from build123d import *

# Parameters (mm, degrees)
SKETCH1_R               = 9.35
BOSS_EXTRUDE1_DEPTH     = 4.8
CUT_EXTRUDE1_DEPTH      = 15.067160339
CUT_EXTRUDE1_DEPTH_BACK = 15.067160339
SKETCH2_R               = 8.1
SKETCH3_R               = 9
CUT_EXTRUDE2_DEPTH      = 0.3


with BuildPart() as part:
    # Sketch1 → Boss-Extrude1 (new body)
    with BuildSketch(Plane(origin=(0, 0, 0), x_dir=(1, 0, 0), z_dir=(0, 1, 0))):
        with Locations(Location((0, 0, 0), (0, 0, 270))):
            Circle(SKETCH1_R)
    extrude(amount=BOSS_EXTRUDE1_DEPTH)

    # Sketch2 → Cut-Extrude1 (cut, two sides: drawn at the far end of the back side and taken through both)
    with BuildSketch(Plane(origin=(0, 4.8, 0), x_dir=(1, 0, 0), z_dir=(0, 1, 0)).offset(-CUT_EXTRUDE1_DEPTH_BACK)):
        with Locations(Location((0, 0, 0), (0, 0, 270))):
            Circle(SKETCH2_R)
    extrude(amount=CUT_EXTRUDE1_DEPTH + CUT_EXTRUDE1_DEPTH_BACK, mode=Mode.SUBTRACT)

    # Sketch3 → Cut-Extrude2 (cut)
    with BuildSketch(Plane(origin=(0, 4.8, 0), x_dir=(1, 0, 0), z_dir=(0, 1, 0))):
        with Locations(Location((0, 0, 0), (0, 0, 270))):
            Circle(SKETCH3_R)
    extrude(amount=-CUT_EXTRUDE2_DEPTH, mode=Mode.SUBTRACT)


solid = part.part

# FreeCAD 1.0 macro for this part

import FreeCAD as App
import Part
import Sketcher
from FreeCAD import Vector
Q = App.Units.Quantity

doc = App.newDocument("Part")
params = doc.addObject("Spreadsheet::Sheet", "Params")
for row, (alias, value) in enumerate([
    ("sketch1_diameter", "18.7 mm"),
    ("pad1_length", "4.8 mm"),
    ("sketch2_diameter", "16.2 mm"),
    ("sketch3_diameter", "18 mm"),
    ("pocket2_length", "0.3 mm"),
], start=1):
    params.set(f"A{row}", alias)
    params.set(f"B{row}", "=" + value)
    params.setAlias(f"B{row}", alias)

body = doc.addObject("PartDesign::Body", "Body")

sketch1 = body.newObject("Sketcher::SketchObject", "Sketch")
sketch1.AttachmentSupport = (doc.getObject("XZ_Plane"), [""])
sketch1.MapMode = "FlatFace"
sketch1.addGeometry(Part.Circle(Vector(0, 0, 0), Vector(0, 0, 1), 9.35), False)
sketch1.addConstraint([
    Sketcher.Constraint("Coincident", 0, 3, -1, 1),
    Sketcher.Constraint("Diameter", 0, Q("18.7 mm")),
])
sketch1.setExpression("Constraints[1]", "Params.sketch1_diameter")
pad1 = body.newObject("PartDesign::Pad", "Pad")
pad1.Profile = sketch1
pad1.setExpression("Length", "Params.pad1_length")
pad1.Reversed = True

sketch2 = body.newObject("Sketcher::SketchObject", "Sketch001")
sketch2.AttachmentSupport = (doc.getObject("XZ_Plane"), [""])
sketch2.MapMode = "FlatFace"
sketch2.AttachmentOffset = App.Placement(Vector(0, 0, -4.8), App.Rotation())
sketch2.addGeometry(Part.Circle(Vector(0, 0, 0), Vector(0, 0, 1), 8.1), False)
sketch2.addConstraint([
    Sketcher.Constraint("Coincident", 0, 3, -1, 1),
    Sketcher.Constraint("Diameter", 0, Q("16.2 mm")),
])
sketch2.setExpression("Constraints[1]", "Params.sketch2_diameter")
pocket1 = body.newObject("PartDesign::Pocket", "Pocket")
pocket1.Profile = sketch2
pocket1.Type = "ThroughAll"
pocket1.Midplane = True

sketch3 = body.newObject("Sketcher::SketchObject", "Sketch002")
sketch3.AttachmentSupport = (doc.getObject("XZ_Plane"), [""])
sketch3.MapMode = "FlatFace"
sketch3.AttachmentOffset = App.Placement(Vector(0, 0, -4.8), App.Rotation())
sketch3.addGeometry(Part.Circle(Vector(0, 0, 0), Vector(0, 0, 1), 9), False)
sketch3.addConstraint([
    Sketcher.Constraint("Coincident", 0, 3, -1, 1),
    Sketcher.Constraint("Diameter", 0, Q("18 mm")),
])
sketch3.setExpression("Constraints[1]", "Params.sketch3_diameter")
pocket2 = body.newObject("PartDesign::Pocket", "Pocket001")
pocket2.Profile = sketch3
pocket2.setExpression("Length", "Params.pocket2_length")
pocket2.Reversed = True

doc.recompute()
